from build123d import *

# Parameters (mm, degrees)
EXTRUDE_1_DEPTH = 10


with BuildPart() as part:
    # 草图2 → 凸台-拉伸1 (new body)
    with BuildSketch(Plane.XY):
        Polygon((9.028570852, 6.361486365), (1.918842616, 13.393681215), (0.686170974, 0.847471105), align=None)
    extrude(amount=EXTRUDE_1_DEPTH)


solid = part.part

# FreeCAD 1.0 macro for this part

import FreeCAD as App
import Part
import Sketcher
Q = App.Units.Quantity

doc = App.newDocument("Part")
body = doc.addObject("PartDesign::Body", "Body")

sketch1 = doc.addObject("Sketcher::SketchObject", "Sketch")
body.addObject(sketch1)
sketch1.AttachmentSupport = (doc.XY_Plane, [""])
sketch1.MapMode = "FlatFace"
sketch1.addGeometry([
    Part.LineSegment(App.Vector(9, 6, 0), App.Vector(2, 13, 0)),
    Part.LineSegment(App.Vector(2, 13, 0), App.Vector(1, 1, 0)),
    Part.LineSegment(App.Vector(1, 1, 0), App.Vector(9, 6, 0)),
], False)
sketch1.addConstraint([
    Sketcher.Constraint("Coincident", 0, 2, 1, 1),
    Sketcher.Constraint("Coincident", 1, 2, 2, 1),
    Sketcher.Constraint("Coincident", 2, 2, 0, 1),
    Sketcher.Constraint("Equal", 0, 2),
    Sketcher.Constraint("Distance", 0, Q("10 mm")),
    Sketcher.Constraint("DistanceX", 1, 2, 2, 2, Q("8.3424 mm")),
    Sketcher.Constraint("Distance", 1, Q("12.60662 mm")),
    Sketcher.Constraint("DistanceY", -1, 1, 0, 2, Q("13.393681 mm")),
    Sketcher.Constraint("DistanceX", -1, 1, 1, 2, Q("0.686171 mm")),
])
pad1 = doc.addObject("PartDesign::Pad", "Pad")
body.addObject(pad1)
pad1.Profile = sketch1
pad1.Length = 10

doc.recompute()
